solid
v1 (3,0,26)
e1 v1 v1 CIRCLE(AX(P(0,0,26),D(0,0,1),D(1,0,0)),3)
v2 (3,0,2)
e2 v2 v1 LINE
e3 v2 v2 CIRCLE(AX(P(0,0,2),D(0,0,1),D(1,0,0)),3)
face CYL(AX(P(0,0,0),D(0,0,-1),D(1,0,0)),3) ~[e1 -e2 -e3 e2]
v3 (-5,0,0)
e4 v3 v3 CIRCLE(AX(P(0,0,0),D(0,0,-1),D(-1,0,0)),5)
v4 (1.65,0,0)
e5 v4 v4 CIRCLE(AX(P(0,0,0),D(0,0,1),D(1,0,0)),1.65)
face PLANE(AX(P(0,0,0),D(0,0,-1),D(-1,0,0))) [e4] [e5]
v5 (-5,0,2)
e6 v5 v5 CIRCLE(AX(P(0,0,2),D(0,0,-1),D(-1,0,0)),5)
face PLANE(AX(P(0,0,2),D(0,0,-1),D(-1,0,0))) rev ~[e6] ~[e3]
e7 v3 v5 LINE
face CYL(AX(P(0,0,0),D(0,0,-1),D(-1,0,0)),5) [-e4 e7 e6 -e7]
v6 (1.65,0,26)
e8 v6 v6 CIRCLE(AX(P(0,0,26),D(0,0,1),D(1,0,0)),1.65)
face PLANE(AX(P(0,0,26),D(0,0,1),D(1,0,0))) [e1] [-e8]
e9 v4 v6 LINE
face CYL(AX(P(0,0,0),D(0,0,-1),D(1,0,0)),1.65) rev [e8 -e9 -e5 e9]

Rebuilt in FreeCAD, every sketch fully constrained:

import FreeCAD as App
import Part
import Sketcher
from FreeCAD import Vector
Q = App.Units.Quantity

doc = App.newDocument("Part")
body = doc.addObject("PartDesign::Body", "Body")

sketch1 = body.newObject("Sketcher::SketchObject", "Sketch")
sketch1.AttachmentSupport = (doc.getObject("XY_Plane"), [""])
sketch1.MapMode = "FlatFace"
sketch1.addGeometry(Part.Circle(Vector(0, 0, 0), Vector(0, 0, 1), 3), False)
sketch1.addGeometry(Part.Circle(Vector(0, 0, 0), Vector(0, 0, 1), 1.6), False)
sketch1.addConstraint(Sketcher.Constraint("Coincident", 0, 3, -1, 1))
sketch1.addConstraint(Sketcher.Constraint("Coincident", 1, 3, -1, 1))
sketch1.addConstraint(Sketcher.Constraint("Diameter", 0, Q("6 mm")))
sketch1.addConstraint(Sketcher.Constraint("Diameter", 1, Q("3.3 mm")))
pad1 = body.newObject("PartDesign::Pad", "Pad")
pad1.Profile = sketch1
pad1.Length = 26

sketch2 = body.newObject("Sketcher::SketchObject", "Sketch001")
sketch2.AttachmentSupport = (doc.getObject("XY_Plane"), [""])
sketch2.MapMode = "FlatFace"
sketch2.addGeometry(Part.Circle(Vector(0, 0, 0), Vector(0, 0, 1), 5), False)
sketch2.addGeometry(Part.Circle(Vector(0, 0, 0), Vector(0, 0, 1), 3), False)
sketch2.addConstraint(Sketcher.Constraint("Coincident", 0, 3, -1, 1))
sketch2.addConstraint(Sketcher.Constraint("Coincident", 1, 3, -1, 1))
sketch2.addConstraint(Sketcher.Constraint("Diameter", 0, Q("10 mm")))
sketch2.addConstraint(Sketcher.Constraint("Diameter", 1, Q("6 mm")))
pad2 = body.newObject("PartDesign::Pad", "Pad001")
pad2.Profile = sketch2
pad2.Length = 2

doc.recompute()
